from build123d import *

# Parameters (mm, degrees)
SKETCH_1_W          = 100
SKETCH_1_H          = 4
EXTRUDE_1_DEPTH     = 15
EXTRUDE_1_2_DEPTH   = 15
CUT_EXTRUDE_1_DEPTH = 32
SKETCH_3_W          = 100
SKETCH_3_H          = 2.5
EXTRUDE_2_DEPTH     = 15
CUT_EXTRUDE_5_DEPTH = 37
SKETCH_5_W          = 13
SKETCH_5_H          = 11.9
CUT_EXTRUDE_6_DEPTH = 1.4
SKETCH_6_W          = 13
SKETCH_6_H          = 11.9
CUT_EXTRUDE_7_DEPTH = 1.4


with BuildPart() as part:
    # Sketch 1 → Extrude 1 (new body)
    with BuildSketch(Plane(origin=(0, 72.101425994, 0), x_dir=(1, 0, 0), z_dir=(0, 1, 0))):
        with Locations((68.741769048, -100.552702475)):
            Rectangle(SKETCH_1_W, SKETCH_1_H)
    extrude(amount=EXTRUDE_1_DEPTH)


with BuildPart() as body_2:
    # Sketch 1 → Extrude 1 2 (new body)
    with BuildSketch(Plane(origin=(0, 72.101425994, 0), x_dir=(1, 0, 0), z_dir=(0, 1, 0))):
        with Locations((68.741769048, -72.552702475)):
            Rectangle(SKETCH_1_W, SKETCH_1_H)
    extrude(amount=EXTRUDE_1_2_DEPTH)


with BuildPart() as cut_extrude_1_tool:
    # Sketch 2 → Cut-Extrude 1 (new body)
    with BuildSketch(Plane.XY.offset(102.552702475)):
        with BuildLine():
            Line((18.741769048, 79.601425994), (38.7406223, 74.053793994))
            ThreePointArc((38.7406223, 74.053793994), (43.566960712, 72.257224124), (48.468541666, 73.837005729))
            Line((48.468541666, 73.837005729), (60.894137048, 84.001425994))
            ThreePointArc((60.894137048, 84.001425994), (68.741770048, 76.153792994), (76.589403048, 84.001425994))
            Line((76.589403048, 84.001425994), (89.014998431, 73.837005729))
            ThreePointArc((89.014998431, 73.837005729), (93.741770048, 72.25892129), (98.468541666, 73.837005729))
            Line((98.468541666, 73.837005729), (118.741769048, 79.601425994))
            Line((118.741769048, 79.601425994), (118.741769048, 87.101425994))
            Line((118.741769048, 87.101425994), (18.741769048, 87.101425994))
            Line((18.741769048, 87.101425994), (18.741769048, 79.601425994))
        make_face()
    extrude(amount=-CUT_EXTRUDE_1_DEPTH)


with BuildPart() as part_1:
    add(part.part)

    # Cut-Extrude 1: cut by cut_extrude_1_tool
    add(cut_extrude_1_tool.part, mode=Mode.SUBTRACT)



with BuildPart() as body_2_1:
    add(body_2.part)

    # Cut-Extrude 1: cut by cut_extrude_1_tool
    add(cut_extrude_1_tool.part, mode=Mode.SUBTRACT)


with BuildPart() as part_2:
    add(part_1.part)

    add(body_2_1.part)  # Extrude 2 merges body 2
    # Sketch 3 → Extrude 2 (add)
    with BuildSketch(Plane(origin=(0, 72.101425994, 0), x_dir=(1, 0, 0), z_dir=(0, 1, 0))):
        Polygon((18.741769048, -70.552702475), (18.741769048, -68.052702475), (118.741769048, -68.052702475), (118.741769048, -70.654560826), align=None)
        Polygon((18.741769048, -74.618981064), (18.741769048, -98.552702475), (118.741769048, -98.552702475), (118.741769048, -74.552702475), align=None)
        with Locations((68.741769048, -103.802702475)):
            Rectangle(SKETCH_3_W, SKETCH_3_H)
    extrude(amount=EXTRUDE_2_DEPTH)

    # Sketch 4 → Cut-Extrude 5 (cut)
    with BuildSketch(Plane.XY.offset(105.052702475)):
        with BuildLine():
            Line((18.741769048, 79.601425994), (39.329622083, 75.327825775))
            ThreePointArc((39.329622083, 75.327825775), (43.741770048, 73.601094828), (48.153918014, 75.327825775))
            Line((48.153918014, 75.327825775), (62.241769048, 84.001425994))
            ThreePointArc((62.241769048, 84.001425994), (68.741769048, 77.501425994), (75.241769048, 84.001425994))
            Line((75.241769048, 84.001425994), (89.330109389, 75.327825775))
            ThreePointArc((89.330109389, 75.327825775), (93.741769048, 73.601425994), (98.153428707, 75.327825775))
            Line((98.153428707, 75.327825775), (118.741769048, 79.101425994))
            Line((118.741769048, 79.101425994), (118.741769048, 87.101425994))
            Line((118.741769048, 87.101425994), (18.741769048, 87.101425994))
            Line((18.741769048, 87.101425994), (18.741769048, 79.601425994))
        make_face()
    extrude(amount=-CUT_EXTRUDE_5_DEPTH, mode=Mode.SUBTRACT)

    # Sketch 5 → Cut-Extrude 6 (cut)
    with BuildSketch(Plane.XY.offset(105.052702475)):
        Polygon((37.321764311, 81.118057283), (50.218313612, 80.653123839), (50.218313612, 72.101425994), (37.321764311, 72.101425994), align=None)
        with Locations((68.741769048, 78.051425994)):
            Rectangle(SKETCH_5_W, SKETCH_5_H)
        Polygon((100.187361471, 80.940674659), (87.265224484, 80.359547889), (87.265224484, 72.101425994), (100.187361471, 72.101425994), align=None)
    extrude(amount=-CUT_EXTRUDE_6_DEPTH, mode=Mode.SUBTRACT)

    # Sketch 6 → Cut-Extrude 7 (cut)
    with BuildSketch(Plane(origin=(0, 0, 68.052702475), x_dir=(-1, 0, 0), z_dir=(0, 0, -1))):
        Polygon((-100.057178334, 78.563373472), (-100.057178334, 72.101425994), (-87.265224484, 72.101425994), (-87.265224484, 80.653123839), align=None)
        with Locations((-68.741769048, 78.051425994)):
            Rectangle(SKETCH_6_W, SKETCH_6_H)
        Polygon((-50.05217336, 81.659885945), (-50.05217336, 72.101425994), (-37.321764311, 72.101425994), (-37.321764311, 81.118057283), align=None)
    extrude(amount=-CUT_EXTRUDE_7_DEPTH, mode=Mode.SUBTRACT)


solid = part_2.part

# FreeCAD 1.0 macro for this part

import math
import FreeCAD as App
import Part
import Sketcher
from FreeCAD import Vector


def add_polygon(sketch, points):
    """Adds a closed chain of lines whose ends are joined by coincident constraints."""
    first, n = sketch.GeometryCount, len(points)
    for a, b in zip(points, points[1:] + points[:1]):
        sketch.addGeometry(Part.LineSegment(App.Vector(*a, 0), App.Vector(*b, 0)), False)
    for i in range(n):
        sketch.addConstraint(Sketcher.Constraint("Coincident", first + i, 2, first + (i + 1) % n, 1))

doc = App.newDocument("Part")
body = doc.addObject("PartDesign::Body", "Body")

sketch1 = body.newObject("Sketcher::SketchObject", "Sketch")
sketch1.AttachmentSupport = (doc.getObject("XZ_Plane"), [""])
sketch1.MapMode = "FlatFace"
sketch1.AttachmentOffset = App.Placement(Vector(0, 0, -72.101426), App.Rotation())
add_polygon(sketch1, [(18.7, 98.6), (18.7, 102.6), (118.7, 102.6), (118.7, 98.6)])
sketch1.addConstraint(Sketcher.Constraint("Vertical", 0))
sketch1.addConstraint(Sketcher.Constraint("Horizontal", 1))
sketch1.addConstraint(Sketcher.Constraint("Vertical", 2))
sketch1.addConstraint(Sketcher.Constraint("Horizontal", 3))
sketch1.addConstraint(Sketcher.Constraint("DistanceX", 1, 1, 1, 2, 100.0))
sketch1.addConstraint(Sketcher.Constraint("DistanceY", 0, 1, 0, 2, 4.0))
sketch1.addConstraint(Sketcher.Constraint("DistanceX", -1, 1, 0, 2, 18.741769))
sketch1.addConstraint(Sketcher.Constraint("DistanceY", -1, 1, 0, 2, 102.552702))
pad1 = body.newObject("PartDesign::Pad", "Pad")
pad1.Profile = sketch1
pad1.Length = 15
pad1.Reversed = True
body2 = doc.addObject("PartDesign::Body", "Body001")

sketch2 = body2.newObject("Sketcher::SketchObject", "Sketch001")
sketch2.AttachmentSupport = (doc.getObject("XZ_Plane001"), [""])
sketch2.MapMode = "FlatFace"
sketch2.AttachmentOffset = App.Placement(Vector(0, 0, -72.101426), App.Rotation())
add_polygon(sketch2, [(18.7, 70.6), (18.7, 74.6), (118.7, 74.6), (118.7, 70.6)])
sketch2.addConstraint(Sketcher.Constraint("Vertical", 0))
sketch2.addConstraint(Sketcher.Constraint("Horizontal", 1))
sketch2.addConstraint(Sketcher.Constraint("Vertical", 2))
sketch2.addConstraint(Sketcher.Constraint("Horizontal", 3))
sketch2.addConstraint(Sketcher.Constraint("DistanceX", 1, 1, 1, 2, 100.0))
sketch2.addConstraint(Sketcher.Constraint("DistanceY", 0, 1, 0, 2, 4.0))
sketch2.addConstraint(Sketcher.Constraint("DistanceX", -1, 1, 0, 2, 18.741769))
sketch2.addConstraint(Sketcher.Constraint("DistanceY", -1, 1, 0, 2, 74.552702))
pad2 = body2.newObject("PartDesign::Pad", "Pad001")
pad2.Profile = sketch2
pad2.Length = 15
pad2.Reversed = True
body3 = doc.addObject("PartDesign::Body", "Body002")

sketch3 = body3.newObject("Sketcher::SketchObject", "Sketch002")
sketch3.AttachmentSupport = (doc.getObject("XY_Plane002"), [""])
sketch3.MapMode = "FlatFace"
sketch3.AttachmentOffset = App.Placement(Vector(0, 0, 102.552702), App.Rotation())
sketch3.addGeometry(Part.LineSegment(Vector(19, 80, 0), Vector(39, 74, 0)), False)
sketch3.addGeometry(Part.ArcOfCircle(Part.Circle(Vector(44, 80, 0), Vector(0, 0, 1), 8), math.radians(-130), math.radians(-53)), False)
sketch3.addGeometry(Part.LineSegment(Vector(48, 74, 0), Vector(61, 84, 0)), False)
sketch3.addGeometry(Part.ArcOfCircle(Part.Circle(Vector(69, 84, 0), Vector(0, 0, 1), 8), math.radians(180), math.radians(360)), False)
sketch3.addGeometry(Part.LineSegment(Vector(77, 84, 0), Vector(89, 74, 0)), False)
sketch3.addGeometry(Part.ArcOfCircle(Part.Circle(Vector(94, 80, 0), Vector(0, 0, 1), 8), math.radians(-127), math.radians(-53)), False)
sketch3.addGeometry(Part.LineSegment(Vector(98, 74, 0), Vector(119, 80, 0)), False)
sketch3.addGeometry(Part.LineSegment(Vector(119, 80, 0), Vector(119, 87, 0)), False)
sketch3.addGeometry(Part.LineSegment(Vector(119, 87, 0), Vector(19, 87, 0)), False)
sketch3.addGeometry(Part.LineSegment(Vector(19, 87, 0), Vector(19, 80, 0)), False)
sketch3.addConstraint(Sketcher.Constraint("Coincident", 0, 2, 1, 1))
sketch3.addConstraint(Sketcher.Constraint("Coincident", 1, 2, 2, 1))
sketch3.addConstraint(Sketcher.Constraint("Coincident", 2, 2, 3, 1))
sketch3.addConstraint(Sketcher.Constraint("Coincident", 3, 2, 4, 1))
sketch3.addConstraint(Sketcher.Constraint("Coincident", 4, 2, 5, 1))
sketch3.addConstraint(Sketcher.Constraint("Coincident", 5, 2, 6, 1))
sketch3.addConstraint(Sketcher.Constraint("Coincident", 6, 2, 7, 1))
sketch3.addConstraint(Sketcher.Constraint("Coincident", 7, 2, 8, 1))
sketch3.addConstraint(Sketcher.Constraint("Coincident", 8, 2, 9, 1))
sketch3.addConstraint(Sketcher.Constraint("Coincident", 9, 2, 0, 1))
sketch3.addConstraint(Sketcher.Constraint("Vertical", 7))
sketch3.addConstraint(Sketcher.Constraint("Horizontal", 8))
sketch3.addConstraint(Sketcher.Constraint("Vertical", 9))
sketch3.addConstraint(Sketcher.Constraint("Horizontal", 3, 3, 2, 2))
sketch3.addConstraint(Sketcher.Constraint("Horizontal", 2, 2, 3, 2))
sketch3.addConstraint(Sketcher.Constraint("Horizontal", 1, 2, 4, 2))
sketch3.addConstraint(Sketcher.Constraint("Horizontal", 4, 2, 5, 2))
sketch3.addConstraint(Sketcher.Constraint("Horizontal", 6, 2, 9, 2))
sketch3.addConstraint(Sketcher.Constraint("Equal", 2, 4))
sketch3.addConstraint(Sketcher.Constraint("DistanceX", 8, 2, 8, 1, 100.0))
sketch3.addConstraint(Sketcher.Constraint("DistanceY", 7, 1, 7, 2, 7.5))
sketch3.addConstraint(Sketcher.Constraint("DistanceX", 3, 3, 5, 3, 25.0))
sketch3.addConstraint(Sketcher.Constraint("DistanceX", 5, 3, 6, 2, 24.999999))
sketch3.addConstraint(Sketcher.Constraint("DistanceY", 6, 2, 3, 2, 4.4))
sketch3.addConstraint(Sketcher.Constraint("Radius", 1, 7.85304))
sketch3.addConstraint(Sketcher.Constraint("DistanceX", -1, 1, 4, 2, 89.014998))
sketch3.addConstraint(Sketcher.Constraint("Radius", 3, 7.847633))
sketch3.addConstraint(Sketcher.Constraint("Radius", 5, 7.867995))
sketch3.addConstraint(Sketcher.Constraint("DistanceY", 1, 3, 5, 3, 0.018601))
sketch3.addConstraint(Sketcher.Constraint("DistanceX", 0, 2, 1, 3, 5.001301))
sketch3.addConstraint(Sketcher.Constraint("Distance", 6, 21.076819))
sketch3.addConstraint(Sketcher.Constraint("DistanceX", -1, 1, 3, 3, 68.74177))
sketch3.addConstraint(Sketcher.Constraint("DistanceY", -1, 1, 1, 3, 80.108315))
pad3 = body3.newObject("PartDesign::Pad", "Pad002")
pad3.Profile = sketch3
pad3.Length = 32
pad3.Reversed = True
doc.recompute()

body4 = doc.addObject("PartDesign::Body", "Body003")
body4.BaseFeature = body3
boolean = body.newObject("PartDesign::Boolean", "Boolean")
boolean.Type = "Cut"
boolean.addObjects([body4])
doc.recompute()

boolean2 = body2.newObject("PartDesign::Boolean", "Boolean001")
boolean2.Type = "Cut"
boolean2.addObjects([body3])
body.AllowCompound = True
doc.recompute()

boolean3 = body.newObject("PartDesign::Boolean", "Boolean002")
boolean3.Type = "Fuse"
boolean3.addObjects([body2])

sketch4 = body.newObject("Sketcher::SketchObject", "Sketch003")
sketch4.AttachmentSupport = (doc.getObject("XZ_Plane"), [""])
sketch4.MapMode = "FlatFace"
sketch4.AttachmentOffset = App.Placement(Vector(0, 0, -72.101426), App.Rotation())
add_polygon(sketch4, [(18.7, 68.1), (18.7, 70.6), (118.7, 70.7), (118.7, 68.1)])
add_polygon(sketch4, [(18.7, 74.6), (18.7, 98.6), (118.7, 98.6), (118.7, 74.6)])
add_polygon(sketch4, [(18.7, 102.6), (18.7, 105.1), (118.7, 105.1), (118.7, 102.6)])
sketch4.addConstraint(Sketcher.Constraint("Vertical", 0))
sketch4.addConstraint(Sketcher.Constraint("Vertical", 2))
sketch4.addConstraint(Sketcher.Constraint("Horizontal", 3))
sketch4.addConstraint(Sketcher.Constraint("Vertical", 4))
sketch4.addConstraint(Sketcher.Constraint("Horizontal", 5))
sketch4.addConstraint(Sketcher.Constraint("Vertical", 6))
sketch4.addConstraint(Sketcher.Constraint("Vertical", 8))
sketch4.addConstraint(Sketcher.Constraint("Horizontal", 9))
sketch4.addConstraint(Sketcher.Constraint("Vertical", 10))
sketch4.addConstraint(Sketcher.Constraint("Horizontal", 11))
sketch4.addConstraint(Sketcher.Constraint("Vertical", 3, 2, 4, 2))
sketch4.addConstraint(Sketcher.Constraint("Vertical", 2, 2, 5, 2))
sketch4.addConstraint(Sketcher.Constraint("Vertical", 7, 2, 8, 2))
sketch4.addConstraint(Sketcher.Constraint("Vertical", 6, 2, 9, 2))
sketch4.addConstraint(Sketcher.Constraint("Equal", 0, 8))
sketch4.addConstraint(Sketcher.Constraint("DistanceX", 3, 2, 3, 1, 100.0))
sketch4.addConstraint(Sketcher.Constraint("DistanceY", 6, 2, 6, 1, 24.0))
sketch4.addConstraint(Sketcher.Constraint("DistanceY", 0, 1, 0, 2, 2.5))
sketch4.addConstraint(Sketcher.Constraint("DistanceY", 0, 2, 4, 2, 28.0))
sketch4.addConstraint(Sketcher.Constraint("DistanceY", 3, 2, 8, 2, 37.0))
sketch4.addConstraint(Sketcher.Constraint("DistanceY", 2, 2, 2, 1, 2.601858))
sketch4.addConstraint(Sketcher.Constraint("DistanceY", 4, 1, 4, 2, 23.933721))
sketch4.addConstraint(Sketcher.Constraint("DistanceX", -1, 1, 0, 2, 18.741769))
sketch4.addConstraint(Sketcher.Constraint("DistanceY", -1, 1, 1, 2, 70.654561))
pad4 = body.newObject("PartDesign::Pad", "Pad003")
pad4.Profile = sketch4
pad4.Length = 15
pad4.Reversed = True

sketch5 = body.newObject("Sketcher::SketchObject", "Sketch004")
sketch5.AttachmentSupport = (doc.getObject("XY_Plane"), [""])
sketch5.MapMode = "FlatFace"
sketch5.AttachmentOffset = App.Placement(Vector(0, 0, 105.052702), App.Rotation())
sketch5.addGeometry(Part.LineSegment(Vector(19, 80, 0), Vector(39, 75, 0)), False)
sketch5.addGeometry(Part.ArcOfCircle(Part.Circle(Vector(44, 80, 0), Vector(0, 0, 1), 7), math.radians(-133), math.radians(-47)), False)
sketch5.addGeometry(Part.LineSegment(Vector(48, 75, 0), Vector(62, 84, 0)), False)
sketch5.addGeometry(Part.ArcOfCircle(Part.Circle(Vector(69, 84, 0), Vector(0, 0, 1), 6), math.radians(180), math.radians(360)), False)
sketch5.addGeometry(Part.LineSegment(Vector(75, 84, 0), Vector(89, 75, 0)), False)
sketch5.addGeometry(Part.ArcOfCircle(Part.Circle(Vector(94, 80, 0), Vector(0, 0, 1), 6), math.radians(-133), math.radians(-47)), False)
sketch5.addGeometry(Part.LineSegment(Vector(98, 75, 0), Vector(119, 79, 0)), False)
sketch5.addGeometry(Part.LineSegment(Vector(119, 79, 0), Vector(119, 87, 0)), False)
sketch5.addGeometry(Part.LineSegment(Vector(119, 87, 0), Vector(19, 87, 0)), False)
sketch5.addGeometry(Part.LineSegment(Vector(19, 87, 0), Vector(19, 80, 0)), False)
sketch5.addConstraint(Sketcher.Constraint("Coincident", 0, 2, 1, 1))
sketch5.addConstraint(Sketcher.Constraint("Coincident", 1, 2, 2, 1))
sketch5.addConstraint(Sketcher.Constraint("Coincident", 2, 2, 3, 1))
sketch5.addConstraint(Sketcher.Constraint("Coincident", 3, 2, 4, 1))
sketch5.addConstraint(Sketcher.Constraint("Coincident", 4, 2, 5, 1))
sketch5.addConstraint(Sketcher.Constraint("Coincident", 5, 2, 6, 1))
sketch5.addConstraint(Sketcher.Constraint("Coincident", 6, 2, 7, 1))
sketch5.addConstraint(Sketcher.Constraint("Coincident", 7, 2, 8, 1))
sketch5.addConstraint(Sketcher.Constraint("Coincident", 8, 2, 9, 1))
sketch5.addConstraint(Sketcher.Constraint("Coincident", 9, 2, 0, 1))
sketch5.addConstraint(Sketcher.Constraint("Vertical", 7))
sketch5.addConstraint(Sketcher.Constraint("Horizontal", 8))
sketch5.addConstraint(Sketcher.Constraint("Vertical", 9))
sketch5.addConstraint(Sketcher.Constraint("Equal", 3, 5))
sketch5.addConstraint(Sketcher.Constraint("Horizontal", 1, 3, 5, 3))
sketch5.addConstraint(Sketcher.Constraint("Horizontal", 0, 2, 1, 2))
sketch5.addConstraint(Sketcher.Constraint("Horizontal", 3, 3, 2, 2))
sketch5.addConstraint(Sketcher.Constraint("Horizontal", 2, 2, 3, 2))
sketch5.addConstraint(Sketcher.Constraint("Horizontal", 1, 2, 4, 2))
sketch5.addConstraint(Sketcher.Constraint("Horizontal", 4, 2, 5, 2))
sketch5.addConstraint(Sketcher.Constraint("Radius", 3, 6.5))
sketch5.addConstraint(Sketcher.Constraint("DistanceX", 8, 2, 8, 1, 100.0))
sketch5.addConstraint(Sketcher.Constraint("DistanceY", 7, 1, 7, 2, 8.0))
sketch5.addConstraint(Sketcher.Constraint("DistanceY", 9, 2, 9, 1, 7.5))
sketch5.addConstraint(Sketcher.Constraint("DistanceX", 1, 3, 3, 3, 24.999999))
sketch5.addConstraint(Sketcher.Constraint("DistanceX", 3, 3, 5, 3, 25.0))
sketch5.addConstraint(Sketcher.Constraint("DistanceX", 5, 3, 6, 2, 25.0))
sketch5.addConstraint(Sketcher.Constraint("DistanceY", 6, 2, 5, 3, 1.0))
sketch5.addConstraint(Sketcher.Constraint("DistanceY", 1, 3, 3, 3, 3.899999))
sketch5.addConstraint(Sketcher.Constraint("Radius", 1, 6.500332))
sketch5.addConstraint(Sketcher.Constraint("DistanceY", 0, 2, 1, 3, 4.773601))
sketch5.addConstraint(Sketcher.Constraint("DistanceX", -1, 1, 1, 3, 43.74177))
sketch5.addConstraint(Sketcher.Constraint("DistanceY", -1, 1, 1, 3, 80.101427))
pocket1 = body.newObject("PartDesign::Pocket", "Pocket")
pocket1.Profile = sketch5
pocket1.Length = 37

sketch6 = body.newObject("Sketcher::SketchObject", "Sketch005")
sketch6.AttachmentSupport = (doc.getObject("XY_Plane"), [""])
sketch6.MapMode = "FlatFace"
sketch6.AttachmentOffset = App.Placement(Vector(0, 0, 105.052702), App.Rotation())
add_polygon(sketch6, [(50, 81), (37, 81), (37, 72), (50, 72)])
add_polygon(sketch6, [(62, 84), (62, 72), (75, 72), (75, 84)])
add_polygon(sketch6, [(100, 81), (87, 80), (87, 72), (100, 72)])
sketch6.addConstraint(Sketcher.Constraint("Vertical", 1))
sketch6.addConstraint(Sketcher.Constraint("Horizontal", 2))
sketch6.addConstraint(Sketcher.Constraint("Vertical", 3))
sketch6.addConstraint(Sketcher.Constraint("Vertical", 4))
sketch6.addConstraint(Sketcher.Constraint("Horizontal", 5))
sketch6.addConstraint(Sketcher.Constraint("Vertical", 6))
sketch6.addConstraint(Sketcher.Constraint("Horizontal", 7))
sketch6.addConstraint(Sketcher.Constraint("Vertical", 9))
sketch6.addConstraint(Sketcher.Constraint("Horizontal", 10))
sketch6.addConstraint(Sketcher.Constraint("Vertical", 11))
sketch6.addConstraint(Sketcher.Constraint("Horizontal", 2, 2, 4, 2))
sketch6.addConstraint(Sketcher.Constraint("Horizontal", 5, 2, 9, 2))
sketch6.addConstraint(Sketcher.Constraint("DistanceX", 5, 1, 5, 2, 13.0))
sketch6.addConstraint(Sketcher.Constraint("DistanceY", 4, 2, 4, 1, 11.9))
sketch6.addConstraint(Sketcher.Constraint("DistanceX", 2, 1, 2, 2, 12.896549))
sketch6.addConstraint(Sketcher.Constraint("DistanceY", 1, 2, 1, 1, 9.016631))
sketch6.addConstraint(Sketcher.Constraint("DistanceY", 9, 2, 9, 1, 8.258122))
sketch6.addConstraint(Sketcher.Constraint("DistanceY", 11, 1, 11, 2, 8.839249))
sketch6.addConstraint(Sketcher.Constraint("DistanceX", 10, 1, 10, 2, 12.922137))
sketch6.addConstraint(Sketcher.Constraint("DistanceY", 3, 1, 3, 2, 8.551698))
sketch6.addConstraint(Sketcher.Constraint("DistanceX", -1, 1, 4, 2, 62.241769))
sketch6.addConstraint(Sketcher.Constraint("DistanceX", -1, 1, 10, 2, 100.187361))
sketch6.addConstraint(Sketcher.Constraint("DistanceX", 3, 2, 8, 2, 37.046911))
sketch6.addConstraint(Sketcher.Constraint("DistanceY", -1, 1, 0, 2, 81.118057))
pocket2 = body.newObject("PartDesign::Pocket", "Pocket001")
pocket2.Profile = sketch6
pocket2.Length = 1.4

sketch7 = body.newObject("Sketcher::SketchObject", "Sketch006")
sketch7.AttachmentSupport = (doc.getObject("XY_Plane"), [""])
sketch7.MapMode = "FlatFace"
sketch7.AttachmentOffset = App.Placement(Vector(0, 0, 68.052702), App.Rotation())
add_polygon(sketch7, [(100, 79), (100, 72), (87, 72), (87, 81)])
add_polygon(sketch7, [(75, 84), (75, 72), (62, 72), (62, 84)])
add_polygon(sketch7, [(50, 82), (50, 72), (37, 72), (37, 81)])
sketch7.addConstraint(Sketcher.Constraint("Vertical", 0))
sketch7.addConstraint(Sketcher.Constraint("Horizontal", 1))
sketch7.addConstraint(Sketcher.Constraint("Vertical", 2))
sketch7.addConstraint(Sketcher.Constraint("Vertical", 4))
sketch7.addConstraint(Sketcher.Constraint("Horizontal", 5))
sketch7.addConstraint(Sketcher.Constraint("Vertical", 6))
sketch7.addConstraint(Sketcher.Constraint("Horizontal", 7))
sketch7.addConstraint(Sketcher.Constraint("Vertical", 8))
sketch7.addConstraint(Sketcher.Constraint("Horizontal", 9))
sketch7.addConstraint(Sketcher.Constraint("Vertical", 10))
sketch7.addConstraint(Sketcher.Constraint("Horizontal", 1, 2, 4, 2))
sketch7.addConstraint(Sketcher.Constraint("Horizontal", 5, 2, 8, 2))
sketch7.addConstraint(Sketcher.Constraint("DistanceX", 5, 2, 5, 1, 13.0))
sketch7.addConstraint(Sketcher.Constraint("DistanceY", 4, 2, 4, 1, 11.9))
sketch7.addConstraint(Sketcher.Constraint("DistanceX", 9, 2, 9, 1, 12.730409))
sketch7.addConstraint(Sketcher.Constraint("DistanceY", 8, 2, 8, 1, 9.55846))
sketch7.addConstraint(Sketcher.Constraint("DistanceY", 10, 1, 10, 2, 9.016631))
sketch7.addConstraint(Sketcher.Constraint("DistanceX", 1, 2, 1, 1, 12.791954))
sketch7.addConstraint(Sketcher.Constraint("DistanceY", 0, 2, 0, 1, 6.461947))
sketch7.addConstraint(Sketcher.Constraint("DistanceY", 2, 1, 2, 2, 8.551698))
sketch7.addConstraint(Sketcher.Constraint("DistanceX", -1, 1, 0, 2, 100.057178))
sketch7.addConstraint(Sketcher.Constraint("DistanceX", -1, 1, 4, 2, 75.241769))
sketch7.addConstraint(Sketcher.Constraint("DistanceX", 8, 2, 1, 2, 37.213051))
sketch7.addConstraint(Sketcher.Constraint("DistanceY", -1, 1, 0, 2, 72.101426))
pocket3 = body.newObject("PartDesign::Pocket", "Pocket002")
pocket3.Profile = sketch7
pocket3.Length = 1.4
pocket3.Reversed = True

doc.recompute()
